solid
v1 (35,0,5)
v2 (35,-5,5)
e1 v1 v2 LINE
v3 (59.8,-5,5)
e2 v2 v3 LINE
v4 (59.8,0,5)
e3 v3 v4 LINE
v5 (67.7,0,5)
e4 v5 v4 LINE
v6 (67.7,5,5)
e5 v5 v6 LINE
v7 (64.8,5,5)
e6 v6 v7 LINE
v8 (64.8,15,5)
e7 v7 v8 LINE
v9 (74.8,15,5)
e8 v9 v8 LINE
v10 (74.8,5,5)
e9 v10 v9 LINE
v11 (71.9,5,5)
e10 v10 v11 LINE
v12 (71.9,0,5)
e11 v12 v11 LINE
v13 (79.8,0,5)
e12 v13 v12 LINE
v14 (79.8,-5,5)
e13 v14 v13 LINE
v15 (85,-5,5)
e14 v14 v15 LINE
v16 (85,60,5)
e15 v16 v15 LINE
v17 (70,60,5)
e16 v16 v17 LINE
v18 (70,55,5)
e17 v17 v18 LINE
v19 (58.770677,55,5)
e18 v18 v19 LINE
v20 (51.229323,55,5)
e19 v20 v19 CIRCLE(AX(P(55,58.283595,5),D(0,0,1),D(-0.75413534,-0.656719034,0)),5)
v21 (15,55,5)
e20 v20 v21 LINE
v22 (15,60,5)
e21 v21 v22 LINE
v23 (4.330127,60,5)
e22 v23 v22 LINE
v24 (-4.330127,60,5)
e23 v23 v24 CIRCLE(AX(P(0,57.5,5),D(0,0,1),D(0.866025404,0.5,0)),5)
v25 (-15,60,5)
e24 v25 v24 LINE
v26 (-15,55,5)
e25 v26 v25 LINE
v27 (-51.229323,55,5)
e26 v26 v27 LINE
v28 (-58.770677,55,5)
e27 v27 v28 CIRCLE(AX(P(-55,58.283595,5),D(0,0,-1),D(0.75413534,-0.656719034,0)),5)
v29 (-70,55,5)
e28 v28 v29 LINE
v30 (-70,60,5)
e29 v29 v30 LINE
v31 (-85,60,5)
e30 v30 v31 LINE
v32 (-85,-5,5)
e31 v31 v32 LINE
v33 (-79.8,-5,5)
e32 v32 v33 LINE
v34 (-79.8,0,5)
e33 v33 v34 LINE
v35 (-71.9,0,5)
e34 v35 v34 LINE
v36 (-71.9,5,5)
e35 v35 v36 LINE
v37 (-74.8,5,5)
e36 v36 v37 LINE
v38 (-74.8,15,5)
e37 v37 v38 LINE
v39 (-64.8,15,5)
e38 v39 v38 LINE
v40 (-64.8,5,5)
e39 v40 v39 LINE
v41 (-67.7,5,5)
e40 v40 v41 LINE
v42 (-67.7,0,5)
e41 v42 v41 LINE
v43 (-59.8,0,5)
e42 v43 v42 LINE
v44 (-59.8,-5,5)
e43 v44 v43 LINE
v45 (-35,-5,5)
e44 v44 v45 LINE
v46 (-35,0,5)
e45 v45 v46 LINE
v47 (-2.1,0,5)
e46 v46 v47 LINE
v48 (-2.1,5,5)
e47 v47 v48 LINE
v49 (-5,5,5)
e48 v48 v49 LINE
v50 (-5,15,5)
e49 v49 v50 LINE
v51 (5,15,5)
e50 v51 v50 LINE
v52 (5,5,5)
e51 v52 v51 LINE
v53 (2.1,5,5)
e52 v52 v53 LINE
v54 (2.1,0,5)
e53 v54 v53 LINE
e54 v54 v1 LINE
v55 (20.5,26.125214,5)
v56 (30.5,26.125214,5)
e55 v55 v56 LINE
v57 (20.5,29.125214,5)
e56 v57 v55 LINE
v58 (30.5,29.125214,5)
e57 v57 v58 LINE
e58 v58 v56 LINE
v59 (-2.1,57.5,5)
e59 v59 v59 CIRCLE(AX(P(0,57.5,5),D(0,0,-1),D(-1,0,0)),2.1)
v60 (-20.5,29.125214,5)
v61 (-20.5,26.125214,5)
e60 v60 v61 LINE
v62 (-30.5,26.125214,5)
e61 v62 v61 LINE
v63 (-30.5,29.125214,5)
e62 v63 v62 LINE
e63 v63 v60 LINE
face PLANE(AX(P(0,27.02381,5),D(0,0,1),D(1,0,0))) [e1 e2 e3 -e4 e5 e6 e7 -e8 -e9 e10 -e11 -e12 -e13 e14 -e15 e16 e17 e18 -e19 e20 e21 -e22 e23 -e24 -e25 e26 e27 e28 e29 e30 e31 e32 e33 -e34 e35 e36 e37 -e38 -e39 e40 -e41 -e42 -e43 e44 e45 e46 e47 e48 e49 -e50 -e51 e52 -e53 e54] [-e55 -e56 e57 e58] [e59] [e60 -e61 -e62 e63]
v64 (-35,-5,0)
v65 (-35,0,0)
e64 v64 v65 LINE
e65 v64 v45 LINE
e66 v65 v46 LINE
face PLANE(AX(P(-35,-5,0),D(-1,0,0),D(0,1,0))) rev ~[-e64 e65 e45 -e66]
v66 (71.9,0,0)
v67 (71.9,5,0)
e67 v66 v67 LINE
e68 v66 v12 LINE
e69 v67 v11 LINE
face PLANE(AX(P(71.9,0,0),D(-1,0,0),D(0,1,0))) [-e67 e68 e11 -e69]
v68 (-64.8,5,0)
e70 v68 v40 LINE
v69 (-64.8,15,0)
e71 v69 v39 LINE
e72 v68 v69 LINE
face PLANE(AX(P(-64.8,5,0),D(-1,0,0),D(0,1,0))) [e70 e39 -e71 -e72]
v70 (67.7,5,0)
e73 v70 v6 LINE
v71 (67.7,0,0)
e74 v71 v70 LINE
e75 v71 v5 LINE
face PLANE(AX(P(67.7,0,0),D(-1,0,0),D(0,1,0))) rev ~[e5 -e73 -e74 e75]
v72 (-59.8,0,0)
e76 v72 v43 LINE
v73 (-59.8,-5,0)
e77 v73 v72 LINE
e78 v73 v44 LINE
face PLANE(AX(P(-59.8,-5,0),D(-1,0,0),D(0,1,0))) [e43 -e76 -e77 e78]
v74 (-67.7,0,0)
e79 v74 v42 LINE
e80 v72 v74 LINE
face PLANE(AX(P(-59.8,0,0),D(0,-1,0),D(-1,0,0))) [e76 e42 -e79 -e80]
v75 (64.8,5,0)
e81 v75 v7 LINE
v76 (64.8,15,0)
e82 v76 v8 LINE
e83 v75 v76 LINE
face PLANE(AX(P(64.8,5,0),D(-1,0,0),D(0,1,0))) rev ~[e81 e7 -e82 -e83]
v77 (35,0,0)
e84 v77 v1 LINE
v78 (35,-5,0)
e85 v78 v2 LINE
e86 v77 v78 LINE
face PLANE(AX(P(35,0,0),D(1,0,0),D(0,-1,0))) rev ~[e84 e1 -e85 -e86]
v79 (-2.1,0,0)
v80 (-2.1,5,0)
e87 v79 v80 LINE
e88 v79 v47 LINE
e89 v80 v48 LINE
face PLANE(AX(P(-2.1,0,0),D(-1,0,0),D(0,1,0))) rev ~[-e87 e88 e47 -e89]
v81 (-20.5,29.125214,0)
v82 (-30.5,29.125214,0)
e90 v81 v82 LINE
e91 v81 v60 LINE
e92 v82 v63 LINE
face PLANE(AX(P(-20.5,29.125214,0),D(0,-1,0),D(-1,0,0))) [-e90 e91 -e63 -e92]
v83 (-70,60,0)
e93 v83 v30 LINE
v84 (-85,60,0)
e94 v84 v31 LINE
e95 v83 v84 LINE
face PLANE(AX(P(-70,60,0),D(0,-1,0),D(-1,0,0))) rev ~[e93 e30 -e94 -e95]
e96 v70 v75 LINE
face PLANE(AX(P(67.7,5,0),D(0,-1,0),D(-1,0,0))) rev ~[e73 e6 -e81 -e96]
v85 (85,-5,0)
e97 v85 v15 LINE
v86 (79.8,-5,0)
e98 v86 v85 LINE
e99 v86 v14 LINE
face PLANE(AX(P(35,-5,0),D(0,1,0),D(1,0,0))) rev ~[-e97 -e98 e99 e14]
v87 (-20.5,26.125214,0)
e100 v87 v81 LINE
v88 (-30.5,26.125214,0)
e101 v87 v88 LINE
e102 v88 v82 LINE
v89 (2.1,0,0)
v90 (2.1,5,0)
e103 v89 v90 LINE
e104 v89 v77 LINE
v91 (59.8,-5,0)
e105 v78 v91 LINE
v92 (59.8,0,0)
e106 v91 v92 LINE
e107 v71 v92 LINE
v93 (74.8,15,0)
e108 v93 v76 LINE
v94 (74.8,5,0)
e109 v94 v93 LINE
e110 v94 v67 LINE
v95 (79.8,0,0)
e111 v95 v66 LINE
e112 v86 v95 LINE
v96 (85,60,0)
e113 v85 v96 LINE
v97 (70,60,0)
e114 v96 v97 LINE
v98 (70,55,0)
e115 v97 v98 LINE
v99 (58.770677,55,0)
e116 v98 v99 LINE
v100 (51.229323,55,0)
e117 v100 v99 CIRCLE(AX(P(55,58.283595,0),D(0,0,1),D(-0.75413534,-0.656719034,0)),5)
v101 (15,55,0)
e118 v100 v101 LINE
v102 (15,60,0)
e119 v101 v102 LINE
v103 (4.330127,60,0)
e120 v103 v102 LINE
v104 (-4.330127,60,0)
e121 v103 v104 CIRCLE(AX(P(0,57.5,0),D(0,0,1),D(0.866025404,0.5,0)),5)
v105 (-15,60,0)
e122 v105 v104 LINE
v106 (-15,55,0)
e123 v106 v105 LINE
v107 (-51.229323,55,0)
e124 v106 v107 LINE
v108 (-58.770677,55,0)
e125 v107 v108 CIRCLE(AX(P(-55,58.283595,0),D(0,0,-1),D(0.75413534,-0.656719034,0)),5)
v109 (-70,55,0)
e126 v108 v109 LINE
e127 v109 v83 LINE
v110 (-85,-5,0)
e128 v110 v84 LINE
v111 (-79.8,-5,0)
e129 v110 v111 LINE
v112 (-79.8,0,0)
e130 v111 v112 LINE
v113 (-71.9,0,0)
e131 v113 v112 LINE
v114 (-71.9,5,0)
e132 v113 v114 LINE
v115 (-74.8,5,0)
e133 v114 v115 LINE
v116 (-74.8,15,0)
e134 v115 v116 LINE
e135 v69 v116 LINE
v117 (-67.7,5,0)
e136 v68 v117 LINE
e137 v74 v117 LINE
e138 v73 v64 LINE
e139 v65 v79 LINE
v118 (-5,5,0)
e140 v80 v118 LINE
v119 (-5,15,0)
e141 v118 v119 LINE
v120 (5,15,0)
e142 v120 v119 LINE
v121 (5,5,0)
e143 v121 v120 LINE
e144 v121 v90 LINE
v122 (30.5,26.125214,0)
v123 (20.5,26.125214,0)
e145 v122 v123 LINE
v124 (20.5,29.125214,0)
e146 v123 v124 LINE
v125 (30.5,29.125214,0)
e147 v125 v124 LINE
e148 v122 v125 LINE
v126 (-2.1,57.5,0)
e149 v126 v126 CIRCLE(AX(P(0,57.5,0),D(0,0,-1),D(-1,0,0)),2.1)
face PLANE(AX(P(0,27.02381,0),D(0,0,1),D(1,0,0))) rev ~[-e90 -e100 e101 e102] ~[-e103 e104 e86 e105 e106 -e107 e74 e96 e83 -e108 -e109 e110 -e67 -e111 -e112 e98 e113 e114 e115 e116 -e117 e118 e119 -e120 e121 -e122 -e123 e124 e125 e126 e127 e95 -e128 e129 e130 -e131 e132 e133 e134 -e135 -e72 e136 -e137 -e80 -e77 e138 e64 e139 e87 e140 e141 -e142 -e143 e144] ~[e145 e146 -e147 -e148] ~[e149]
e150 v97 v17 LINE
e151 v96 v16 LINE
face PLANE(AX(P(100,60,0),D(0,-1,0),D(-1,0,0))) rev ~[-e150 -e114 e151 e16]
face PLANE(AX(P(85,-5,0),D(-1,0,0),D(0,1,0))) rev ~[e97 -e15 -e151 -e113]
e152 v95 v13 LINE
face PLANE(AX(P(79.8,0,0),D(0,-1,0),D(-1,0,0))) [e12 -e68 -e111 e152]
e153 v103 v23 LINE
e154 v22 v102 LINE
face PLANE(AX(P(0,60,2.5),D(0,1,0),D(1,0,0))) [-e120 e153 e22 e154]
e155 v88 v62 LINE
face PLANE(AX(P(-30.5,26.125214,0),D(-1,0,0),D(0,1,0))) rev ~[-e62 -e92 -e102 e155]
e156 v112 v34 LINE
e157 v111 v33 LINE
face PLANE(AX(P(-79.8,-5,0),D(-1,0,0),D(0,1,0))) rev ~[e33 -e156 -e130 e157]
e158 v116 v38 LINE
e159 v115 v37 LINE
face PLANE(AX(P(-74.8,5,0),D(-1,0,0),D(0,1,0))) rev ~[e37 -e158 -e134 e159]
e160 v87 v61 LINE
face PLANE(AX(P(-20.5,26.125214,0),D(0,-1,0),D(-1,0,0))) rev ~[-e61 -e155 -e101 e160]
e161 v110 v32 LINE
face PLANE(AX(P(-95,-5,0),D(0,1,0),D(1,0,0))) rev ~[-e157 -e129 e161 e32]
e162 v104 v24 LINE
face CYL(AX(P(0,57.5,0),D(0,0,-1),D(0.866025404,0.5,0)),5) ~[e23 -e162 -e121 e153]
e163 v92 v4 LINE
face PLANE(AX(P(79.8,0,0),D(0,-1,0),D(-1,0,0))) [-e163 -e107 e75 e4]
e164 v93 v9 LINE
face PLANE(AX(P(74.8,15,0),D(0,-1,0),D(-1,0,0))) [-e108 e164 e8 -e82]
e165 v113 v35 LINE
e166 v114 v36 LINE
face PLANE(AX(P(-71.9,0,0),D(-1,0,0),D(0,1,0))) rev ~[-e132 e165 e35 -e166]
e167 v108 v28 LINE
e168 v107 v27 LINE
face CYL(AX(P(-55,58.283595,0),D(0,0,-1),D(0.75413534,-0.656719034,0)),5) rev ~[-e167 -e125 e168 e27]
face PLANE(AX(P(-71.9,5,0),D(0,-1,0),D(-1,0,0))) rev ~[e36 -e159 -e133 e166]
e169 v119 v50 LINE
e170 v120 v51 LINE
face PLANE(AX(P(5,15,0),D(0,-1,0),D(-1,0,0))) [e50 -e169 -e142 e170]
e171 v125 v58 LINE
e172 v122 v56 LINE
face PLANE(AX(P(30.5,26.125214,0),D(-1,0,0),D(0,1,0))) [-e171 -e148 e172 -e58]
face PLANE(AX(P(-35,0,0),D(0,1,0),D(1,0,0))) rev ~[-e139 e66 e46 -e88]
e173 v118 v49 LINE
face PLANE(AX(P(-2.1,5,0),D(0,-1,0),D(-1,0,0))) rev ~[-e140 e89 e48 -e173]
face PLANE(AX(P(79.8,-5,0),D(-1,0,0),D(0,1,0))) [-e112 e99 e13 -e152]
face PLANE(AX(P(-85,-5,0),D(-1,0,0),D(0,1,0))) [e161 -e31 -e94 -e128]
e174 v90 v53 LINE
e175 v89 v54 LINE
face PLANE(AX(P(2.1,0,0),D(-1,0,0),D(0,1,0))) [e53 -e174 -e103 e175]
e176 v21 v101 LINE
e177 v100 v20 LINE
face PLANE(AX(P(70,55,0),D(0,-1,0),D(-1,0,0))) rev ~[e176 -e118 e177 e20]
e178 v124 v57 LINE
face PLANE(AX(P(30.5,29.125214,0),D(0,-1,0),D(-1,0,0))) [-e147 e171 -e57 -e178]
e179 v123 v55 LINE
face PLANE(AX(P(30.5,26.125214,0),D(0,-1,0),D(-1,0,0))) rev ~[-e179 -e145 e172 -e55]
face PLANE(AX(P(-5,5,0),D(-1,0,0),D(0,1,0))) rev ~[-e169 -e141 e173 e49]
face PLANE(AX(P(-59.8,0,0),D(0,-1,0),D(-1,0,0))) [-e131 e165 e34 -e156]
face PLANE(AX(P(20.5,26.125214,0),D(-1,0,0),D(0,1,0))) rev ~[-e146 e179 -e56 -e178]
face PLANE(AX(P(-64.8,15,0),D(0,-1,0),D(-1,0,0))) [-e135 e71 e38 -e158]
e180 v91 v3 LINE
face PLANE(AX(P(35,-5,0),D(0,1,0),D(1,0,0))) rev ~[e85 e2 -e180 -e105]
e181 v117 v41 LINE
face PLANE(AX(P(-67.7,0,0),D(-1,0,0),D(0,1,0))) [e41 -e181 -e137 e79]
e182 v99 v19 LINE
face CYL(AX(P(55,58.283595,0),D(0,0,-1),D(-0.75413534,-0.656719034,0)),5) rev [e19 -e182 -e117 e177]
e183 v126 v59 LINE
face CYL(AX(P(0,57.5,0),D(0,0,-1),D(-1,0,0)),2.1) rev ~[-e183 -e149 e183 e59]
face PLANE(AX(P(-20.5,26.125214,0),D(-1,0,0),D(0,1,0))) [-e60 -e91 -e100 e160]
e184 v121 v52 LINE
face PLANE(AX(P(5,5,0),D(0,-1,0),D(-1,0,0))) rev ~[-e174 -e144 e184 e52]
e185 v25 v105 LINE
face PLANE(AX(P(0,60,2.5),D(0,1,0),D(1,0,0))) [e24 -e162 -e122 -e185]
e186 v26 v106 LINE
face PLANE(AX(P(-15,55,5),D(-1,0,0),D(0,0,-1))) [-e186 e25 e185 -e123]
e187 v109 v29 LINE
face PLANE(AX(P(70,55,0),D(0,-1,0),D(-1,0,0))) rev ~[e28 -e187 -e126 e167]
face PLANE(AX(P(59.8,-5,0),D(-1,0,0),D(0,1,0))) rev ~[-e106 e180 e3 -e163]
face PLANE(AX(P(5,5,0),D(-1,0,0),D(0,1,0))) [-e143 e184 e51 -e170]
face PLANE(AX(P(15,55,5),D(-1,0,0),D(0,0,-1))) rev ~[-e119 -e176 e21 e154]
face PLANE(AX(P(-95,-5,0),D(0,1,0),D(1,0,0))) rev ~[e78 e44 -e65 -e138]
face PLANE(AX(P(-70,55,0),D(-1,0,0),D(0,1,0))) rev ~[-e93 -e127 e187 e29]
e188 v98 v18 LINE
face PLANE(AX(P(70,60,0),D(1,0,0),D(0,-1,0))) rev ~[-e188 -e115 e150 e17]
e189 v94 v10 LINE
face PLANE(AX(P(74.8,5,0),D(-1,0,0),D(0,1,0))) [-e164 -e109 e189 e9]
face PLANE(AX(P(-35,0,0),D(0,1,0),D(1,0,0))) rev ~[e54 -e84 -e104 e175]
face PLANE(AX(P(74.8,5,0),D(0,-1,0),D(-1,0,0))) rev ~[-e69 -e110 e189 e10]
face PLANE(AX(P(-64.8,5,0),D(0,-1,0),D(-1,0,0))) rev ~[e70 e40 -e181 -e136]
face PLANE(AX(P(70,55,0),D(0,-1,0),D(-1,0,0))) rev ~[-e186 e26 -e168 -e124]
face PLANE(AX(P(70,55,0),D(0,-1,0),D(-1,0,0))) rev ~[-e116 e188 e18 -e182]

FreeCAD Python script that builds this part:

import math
import FreeCAD as App
import Part
import Sketcher

V = App.Vector

doc = App.newDocument("Part")
body = doc.addObject("PartDesign::Body", "Body")

sketch1 = doc.addObject("Sketcher::SketchObject", "Sketch")
body.addObject(sketch1)
sketch1.AttachmentSupport = (doc.XY_Plane, [""])
sketch1.MapMode = "FlatFace"
sketch1.addGeometry(Part.LineSegment(V(95, -5, 0), V(95, 0, 0)), False)
sketch1.addGeometry(Part.LineSegment(V(95, 0, 0), V(115, 0, 0)), False)
sketch1.addGeometry(Part.LineSegment(V(115, 0, 0), V(115, 15, 0)), False)
sketch1.addGeometry(Part.LineSegment(V(115, 15, 0), V(120, 15, 0)), False)
sketch1.addGeometry(Part.LineSegment(V(120, 15, 0), V(120, 40, 0)), False)
sketch1.addGeometry(Part.LineSegment(V(120, 40, 0), V(115, 40, 0)), False)
sketch1.addGeometry(Part.LineSegment(V(115, 40, 0), V(115, 55, 0)), False)
sketch1.addGeometry(Part.LineSegment(V(115, 55, 0), V(100, 55, 0)), False)
sketch1.addGeometry(Part.LineSegment(V(100, 55, 0), V(100, 60, 0)), False)
sketch1.addGeometry(Part.LineSegment(V(100, 60, 0), V(70, 60, 0)), False)
sketch1.addGeometry(Part.LineSegment(V(70, 60, 0), V(70, 55, 0)), False)
sketch1.addGeometry(Part.LineSegment(V(70, 55, 0), V(-70, 55, 0)), False)
sketch1.addGeometry(Part.LineSegment(V(-70, 55, 0), V(-70, 60, 0)), False)
sketch1.addGeometry(Part.LineSegment(V(-70, 60, 0), V(-100, 60, 0)), False)
sketch1.addGeometry(Part.LineSegment(V(-100, 60, 0), V(-100, 55, 0)), False)
sketch1.addGeometry(Part.LineSegment(V(-100, 55, 0), V(-115, 55, 0)), False)
sketch1.addGeometry(Part.LineSegment(V(-115, 55, 0), V(-115, 40, 0)), False)
sketch1.addGeometry(Part.LineSegment(V(-115, 40, 0), V(-120, 40, 0)), False)
sketch1.addGeometry(Part.LineSegment(V(-120, 40, 0), V(-120, 15, 0)), False)
sketch1.addGeometry(Part.LineSegment(V(-120, 15, 0), V(-115, 15, 0)), False)
sketch1.addGeometry(Part.LineSegment(V(-115, 15, 0), V(-115, 0, 0)), False)
sketch1.addGeometry(Part.LineSegment(V(-115, 0, 0), V(-95, 0, 0)), False)
sketch1.addGeometry(Part.LineSegment(V(-95, 0, 0), V(-95, -5, 0)), False)
sketch1.addGeometry(Part.LineSegment(V(-95, -5, 0), V(-35, -5, 0)), False)
sketch1.addGeometry(Part.LineSegment(V(-35, -5, 0), V(-35, 0, 0)), False)
sketch1.addGeometry(Part.LineSegment(V(-35, 0, 0), V(35, 0, 0)), False)
sketch1.addGeometry(Part.LineSegment(V(35, 0, 0), V(35, -5, 0)), False)
sketch1.addGeometry(Part.LineSegment(V(35, -5, 0), V(95, -5, 0)), False)
sketch1.addConstraint(Sketcher.Constraint("Coincident", 0, 2, 1, 1))
sketch1.addConstraint(Sketcher.Constraint("Coincident", 1, 2, 2, 1))
sketch1.addConstraint(Sketcher.Constraint("Coincident", 2, 2, 3, 1))
sketch1.addConstraint(Sketcher.Constraint("Coincident", 3, 2, 4, 1))
sketch1.addConstraint(Sketcher.Constraint("Coincident", 4, 2, 5, 1))
sketch1.addConstraint(Sketcher.Constraint("Coincident", 5, 2, 6, 1))
sketch1.addConstraint(Sketcher.Constraint("Coincident", 6, 2, 7, 1))
sketch1.addConstraint(Sketcher.Constraint("Coincident", 7, 2, 8, 1))
sketch1.addConstraint(Sketcher.Constraint("Coincident", 8, 2, 9, 1))
sketch1.addConstraint(Sketcher.Constraint("Coincident", 9, 2, 10, 1))
sketch1.addConstraint(Sketcher.Constraint("Coincident", 10, 2, 11, 1))
sketch1.addConstraint(Sketcher.Constraint("Coincident", 11, 2, 12, 1))
sketch1.addConstraint(Sketcher.Constraint("Coincident", 12, 2, 13, 1))
sketch1.addConstraint(Sketcher.Constraint("Coincident", 13, 2, 14, 1))
sketch1.addConstraint(Sketcher.Constraint("Coincident", 14, 2, 15, 1))
sketch1.addConstraint(Sketcher.Constraint("Coincident", 15, 2, 16, 1))
sketch1.addConstraint(Sketcher.Constraint("Coincident", 16, 2, 17, 1))
sketch1.addConstraint(Sketcher.Constraint("Coincident", 17, 2, 18, 1))
sketch1.addConstraint(Sketcher.Constraint("Coincident", 18, 2, 19, 1))
sketch1.addConstraint(Sketcher.Constraint("Coincident", 19, 2, 20, 1))
sketch1.addConstraint(Sketcher.Constraint("Coincident", 20, 2, 21, 1))
sketch1.addConstraint(Sketcher.Constraint("Coincident", 21, 2, 22, 1))
sketch1.addConstraint(Sketcher.Constraint("Coincident", 22, 2, 23, 1))
sketch1.addConstraint(Sketcher.Constraint("Coincident", 23, 2, 24, 1))
sketch1.addConstraint(Sketcher.Constraint("Coincident", 24, 2, 25, 1))
sketch1.addConstraint(Sketcher.Constraint("Coincident", 25, 2, 26, 1))
sketch1.addConstraint(Sketcher.Constraint("Coincident", 26, 2, 27, 1))
sketch1.addConstraint(Sketcher.Constraint("Coincident", 27, 2, 0, 1))
sketch1.addConstraint(Sketcher.Constraint("Vertical", 0))
sketch1.addConstraint(Sketcher.Constraint("Horizontal", 1))
sketch1.addConstraint(Sketcher.Constraint("Vertical", 2))
sketch1.addConstraint(Sketcher.Constraint("Horizontal", 3))
sketch1.addConstraint(Sketcher.Constraint("Vertical", 4))
sketch1.addConstraint(Sketcher.Constraint("Horizontal", 5))
sketch1.addConstraint(Sketcher.Constraint("Vertical", 6))
sketch1.addConstraint(Sketcher.Constraint("Horizontal", 7))
sketch1.addConstraint(Sketcher.Constraint("Vertical", 8))
sketch1.addConstraint(Sketcher.Constraint("Horizontal", 9))
sketch1.addConstraint(Sketcher.Constraint("Vertical", 10))
sketch1.addConstraint(Sketcher.Constraint("Horizontal", 11))
sketch1.addConstraint(Sketcher.Constraint("Vertical", 12))
sketch1.addConstraint(Sketcher.Constraint("Horizontal", 13))
sketch1.addConstraint(Sketcher.Constraint("Vertical", 14))
sketch1.addConstraint(Sketcher.Constraint("Horizontal", 15))
sketch1.addConstraint(Sketcher.Constraint("Vertical", 16))
sketch1.addConstraint(Sketcher.Constraint("Horizontal", 17))
sketch1.addConstraint(Sketcher.Constraint("Vertical", 18))
sketch1.addConstraint(Sketcher.Constraint("Horizontal", 19))
sketch1.addConstraint(Sketcher.Constraint("Vertical", 20))
sketch1.addConstraint(Sketcher.Constraint("Horizontal", 21))
sketch1.addConstraint(Sketcher.Constraint("Vertical", 22))
sketch1.addConstraint(Sketcher.Constraint("Horizontal", 23))
sketch1.addConstraint(Sketcher.Constraint("Vertical", 24))
sketch1.addConstraint(Sketcher.Constraint("Horizontal", 25))
sketch1.addConstraint(Sketcher.Constraint("Vertical", 26))
sketch1.addConstraint(Sketcher.Constraint("Horizontal", 27))
sketch1.addConstraint(Sketcher.Constraint("Symmetric", 1, 2, 20, 2, -1, 1))
sketch1.addConstraint(Sketcher.Constraint("Symmetric", 24, 2, 25, 2, -1, 1))
sketch1.addConstraint(Sketcher.Constraint("Symmetric", 9, 2, 12, 2, -2))
sketch1.addConstraint(Sketcher.Constraint("Symmetric", 7, 2, 14, 2, -2))
sketch1.addConstraint(Sketcher.Constraint("Symmetric", 5, 2, 16, 2, -2))
sketch1.addConstraint(Sketcher.Constraint("Symmetric", 3, 2, 18, 2, -2))
sketch1.addConstraint(Sketcher.Constraint("Symmetric", 0, 2, 21, 2, -2))
sketch1.addConstraint(Sketcher.Constraint("Horizontal", 7, 2, 10, 2))
sketch1.addConstraint(Sketcher.Constraint("Horizontal", 23, 2, 26, 2))
sketch1.addConstraint(Sketcher.Constraint("Vertical", 2, 2, 5, 2))
sketch1.addConstraint(Sketcher.Constraint("Equal", 19, 0))
sketch1.addConstraint(Sketcher.Constraint("Equal", 15, 2))
sketch1.addConstraint(Sketcher.Constraint("Equal", 2, 6))
sketch1.addConstraint(Sketcher.Constraint("Equal", 0, 8))
sketch1.addConstraint(Sketcher.Constraint("DistanceX", 1, 1, 1, 2, 20.0))
sketch1.addConstraint(Sketcher.Constraint("DistanceX", 3, 1, 3, 2, 5.0))
sketch1.addConstraint(Sketcher.Constraint("DistanceX", 7, 2, 7, 1, 15.0))
sketch1.addConstraint(Sketcher.Constraint("DistanceX", 9, 2, 9, 1, 30.0))
sketch1.addConstraint(Sketcher.Constraint("DistanceX", 11, 2, 11, 1, 140.0))
sketch1.addConstraint(Sketcher.Constraint("DistanceX", 23, 1, 23, 2, 60.0))
sketch1.addConstraint(Sketcher.Constraint("DistanceY", 4, 1, 4, 2, 25.0))
pad1 = doc.addObject("PartDesign::Pad", "Pad")
body.addObject(pad1)
pad1.Profile = sketch1
pad1.Length = 5

sketch2 = doc.addObject("Sketcher::SketchObject", "Sketch001")
body.addObject(sketch2)
sketch2.AttachmentSupport = (doc.XY_Plane, [""])
sketch2.MapMode = "FlatFace"
sketch2.addGeometry(Part.LineSegment(V(-85, 60, 0), V(-85, -5, 0)), False)
sketch2.addGeometry(Part.LineSegment(V(-85, -5, 0), V(-120, -5, 0)), False)
sketch2.addGeometry(Part.LineSegment(V(-120, -5, 0), V(-120, 60, 0)), False)
sketch2.addGeometry(Part.LineSegment(V(-120, 60, 0), V(-85, 60, 0)), False)
sketch2.addGeometry(Part.LineSegment(V(120, 60, 0), V(120, -5, 0)), False)
sketch2.addGeometry(Part.LineSegment(V(120, -5, 0), V(85, -5, 0)), False)
sketch2.addGeometry(Part.LineSegment(V(85, -5, 0), V(85, 60, 0)), False)
sketch2.addGeometry(Part.LineSegment(V(85, 60, 0), V(120, 60, 0)), False)
sketch2.addConstraint(Sketcher.Constraint("Coincident", 0, 2, 1, 1))
sketch2.addConstraint(Sketcher.Constraint("Coincident", 1, 2, 2, 1))
sketch2.addConstraint(Sketcher.Constraint("Coincident", 2, 2, 3, 1))
sketch2.addConstraint(Sketcher.Constraint("Coincident", 3, 2, 0, 1))
sketch2.addConstraint(Sketcher.Constraint("Coincident", 4, 2, 5, 1))
sketch2.addConstraint(Sketcher.Constraint("Coincident", 5, 2, 6, 1))
sketch2.addConstraint(Sketcher.Constraint("Coincident", 6, 2, 7, 1))
sketch2.addConstraint(Sketcher.Constraint("Coincident", 7, 2, 4, 1))
sketch2.addConstraint(Sketcher.Constraint("Vertical", 0))
sketch2.addConstraint(Sketcher.Constraint("Horizontal", 1))
sketch2.addConstraint(Sketcher.Constraint("Vertical", 2))
sketch2.addConstraint(Sketcher.Constraint("Horizontal", 3))
sketch2.addConstraint(Sketcher.Constraint("Vertical", 4))
sketch2.addConstraint(Sketcher.Constraint("Horizontal", 5))
sketch2.addConstraint(Sketcher.Constraint("Vertical", 6))
sketch2.addConstraint(Sketcher.Constraint("Horizontal", 7))
sketch2.addConstraint(Sketcher.Constraint("Symmetric", 1, 2, 4, 2, -2))
sketch2.addConstraint(Sketcher.Constraint("Symmetric", 3, 2, 6, 2, -2))
sketch2.addConstraint(Sketcher.Constraint("DistanceX", 1, 2, 1, 1, 35.0))
sketch2.addConstraint(Sketcher.Constraint("DistanceY", 0, 2, 0, 1, 65.0))
sketch2.addConstraint(Sketcher.Constraint("DistanceX", 0, 2, -1, 1, 85.0))
sketch2.addConstraint(Sketcher.Constraint("DistanceY", 0, 2, -1, 1, 5.0))
pocket1 = doc.addObject("PartDesign::Pocket", "Pocket")
body.addObject(pocket1)
pocket1.Profile = sketch2
pocket1.Length = 10
pocket1.Reversed = True

sketch3 = doc.addObject("Sketcher::SketchObject", "Sketch002")
body.addObject(sketch3)
sketch3.AttachmentSupport = (doc.XY_Plane, [""])
sketch3.MapMode = "FlatFace"
sketch3.addGeometry(Part.LineSegment(V(-59, 55, 0), V(-51, 55, 0)), False)
sketch3.addGeometry(Part.ArcOfCircle(Part.Circle(V(-55, 58, 0), V(0, 0, 1), 5), math.radians(-139), math.radians(-41)), False)
sketch3.addGeometry(Part.LineSegment(V(51, 55, 0), V(59, 55, 0)), False)
sketch3.addGeometry(Part.ArcOfCircle(Part.Circle(V(55, 58, 0), V(0, 0, 1), 5), math.radians(-139), math.radians(-41)), False)
sketch3.addConstraint(Sketcher.Constraint("Coincident", 0, 1, 1, 1))
sketch3.addConstraint(Sketcher.Constraint("Coincident", 1, 2, 0, 2))
sketch3.addConstraint(Sketcher.Constraint("Coincident", 2, 1, 3, 1))
sketch3.addConstraint(Sketcher.Constraint("Coincident", 3, 2, 2, 2))
sketch3.addConstraint(Sketcher.Constraint("Horizontal", 0))
sketch3.addConstraint(Sketcher.Constraint("Horizontal", 2))
sketch3.addConstraint(Sketcher.Constraint("Equal", 1, 3))
sketch3.addConstraint(Sketcher.Constraint("Symmetric", 1, 3, 3, 3, -2))
sketch3.addConstraint(Sketcher.Constraint("Horizontal", 1, 2, 2, 1))
sketch3.addConstraint(Sketcher.Constraint("Radius", 1, 5.0))
sketch3.addConstraint(Sketcher.Constraint("DistanceX", 1, 3, -1, 1, 55.0))
sketch3.addConstraint(Sketcher.Constraint("DistanceY", -1, 1, 0, 1, 55.0))
sketch3.addConstraint(Sketcher.Constraint("DistanceX", 0, 1, 0, 2, 7.541353))
pocket2 = doc.addObject("PartDesign::Pocket", "Pocket001")
body.addObject(pocket2)
pocket2.Profile = sketch3
pocket2.Length = 5
pocket2.Reversed = True

sketch4 = doc.addObject("Sketcher::SketchObject", "Sketch003")
body.addObject(sketch4)
sketch4.AttachmentSupport = (doc.XZ_Plane, [""])
sketch4.MapMode = "FlatFace"
sketch4.AttachmentOffset = App.Placement(V(0, 0, -55), App.Rotation())
sketch4.addGeometry(Part.LineSegment(V(-15, 0, 0), V(-15, 5, 0)), False)
sketch4.addGeometry(Part.LineSegment(V(-15, 5, 0), V(15, 5, 0)), False)
sketch4.addGeometry(Part.LineSegment(V(15, 5, 0), V(15, 0, 0)), False)
sketch4.addGeometry(Part.LineSegment(V(15, 0, 0), V(-15, 0, 0)), False)
sketch4.addConstraint(Sketcher.Constraint("Coincident", 0, 2, 1, 1))
sketch4.addConstraint(Sketcher.Constraint("Coincident", 1, 2, 2, 1))
sketch4.addConstraint(Sketcher.Constraint("Coincident", 2, 2, 3, 1))
sketch4.addConstraint(Sketcher.Constraint("Coincident", 3, 2, 0, 1))
sketch4.addConstraint(Sketcher.Constraint("Vertical", 0))
sketch4.addConstraint(Sketcher.Constraint("Horizontal", 1))
sketch4.addConstraint(Sketcher.Constraint("Vertical", 2))
sketch4.addConstraint(Sketcher.Constraint("Horizontal", 3))
sketch4.addConstraint(Sketcher.Constraint("Symmetric", 2, 2, 3, 2, -1, 1))
sketch4.addConstraint(Sketcher.Constraint("DistanceX", 1, 1, 1, 2, 30.0))
sketch4.addConstraint(Sketcher.Constraint("DistanceY", 0, 1, 0, 2, 5.0))
pad2 = doc.addObject("PartDesign::Pad", "Pad001")
body.addObject(pad2)
pad2.Profile = sketch4
pad2.Length = 5
pad2.Reversed = True

sketch5 = doc.addObject("Sketcher::SketchObject", "Sketch004")
body.addObject(sketch5)
sketch5.AttachmentSupport = (doc.XY_Plane, [""])
sketch5.MapMode = "FlatFace"
sketch5.addGeometry(Part.LineSegment(V(80, 0, 0), V(80, -5, 0)), False)
sketch5.addGeometry(Part.LineSegment(V(80, -5, 0), V(60, -5, 0)), False)
sketch5.addGeometry(Part.LineSegment(V(60, -5, 0), V(60, 0, 0)), False)
sketch5.addGeometry(Part.LineSegment(V(60, 0, 0), V(80, 0, 0)), False)
sketch5.addGeometry(Part.LineSegment(V(-60, 0, 0), V(-60, -5, 0)), False)
sketch5.addGeometry(Part.LineSegment(V(-60, -5, 0), V(-80, -5, 0)), False)
sketch5.addGeometry(Part.LineSegment(V(-80, -5, 0), V(-80, 0, 0)), False)
sketch5.addGeometry(Part.LineSegment(V(-80, 0, 0), V(-60, 0, 0)), False)
sketch5.addConstraint(Sketcher.Constraint("Coincident", 0, 2, 1, 1))
sketch5.addConstraint(Sketcher.Constraint("Coincident", 1, 2, 2, 1))
sketch5.addConstraint(Sketcher.Constraint("Coincident", 2, 2, 3, 1))
sketch5.addConstraint(Sketcher.Constraint("Coincident", 3, 2, 0, 1))
sketch5.addConstraint(Sketcher.Constraint("Coincident", 4, 2, 5, 1))
sketch5.addConstraint(Sketcher.Constraint("Coincident", 5, 2, 6, 1))
sketch5.addConstraint(Sketcher.Constraint("Coincident", 6, 2, 7, 1))
sketch5.addConstraint(Sketcher.Constraint("Coincident", 7, 2, 4, 1))
sketch5.addConstraint(Sketcher.Constraint("Vertical", 0))
sketch5.addConstraint(Sketcher.Constraint("Horizontal", 1))
sketch5.addConstraint(Sketcher.Constraint("Vertical", 2))
sketch5.addConstraint(Sketcher.Constraint("Horizontal", 3))
sketch5.addConstraint(Sketcher.Constraint("Vertical", 4))
sketch5.addConstraint(Sketcher.Constraint("Horizontal", 5))
sketch5.addConstraint(Sketcher.Constraint("Vertical", 6))
sketch5.addConstraint(Sketcher.Constraint("Horizontal", 7))
sketch5.addConstraint(Sketcher.Constraint("Symmetric", 3, 2, 6, 2, -1, 1))
sketch5.addConstraint(Sketcher.Constraint("Symmetric", 1, 2, 4, 2, -2))
sketch5.addConstraint(Sketcher.Constraint("PointOnObject", 2, 2, -1))
sketch5.addConstraint(Sketcher.Constraint("DistanceX", 1, 2, 1, 1, 20.0))
sketch5.addConstraint(Sketcher.Constraint("DistanceY", 0, 2, 0, 1, 5.0))
sketch5.addConstraint(Sketcher.Constraint("DistanceX", -1, 1, 0, 2, 79.8))
pocket3 = doc.addObject("PartDesign::Pocket", "Pocket002")
body.addObject(pocket3)
pocket3.Profile = sketch5
pocket3.Length = 5
pocket3.Reversed = True

sketch6 = doc.addObject("Sketcher::SketchObject", "Sketch005")
body.addObject(sketch6)
sketch6.AttachmentSupport = (doc.XY_Plane, [""])
sketch6.MapMode = "FlatFace"
sketch6.addGeometry(Part.Circle(V(0, 57.5, 0), V(0, 0, 1), 2.1), False)
sketch6.addConstraint(Sketcher.Constraint("PointOnObject", 0, 3, -2))
sketch6.addConstraint(Sketcher.Constraint("Diameter", 0, 4.2))
sketch6.addConstraint(Sketcher.Constraint("DistanceY", -1, 1, 0, 3, 57.5))
pocket4 = doc.addObject("PartDesign::Pocket", "Pocket003")
body.addObject(pocket4)
pocket4.Profile = sketch6
pocket4.Length = 5
pocket4.Reversed = True

sketch7 = doc.addObject("Sketcher::SketchObject", "Sketch006")
body.addObject(sketch7)
sketch7.AttachmentSupport = (doc.XY_Plane, [""])
sketch7.MapMode = "FlatFace"
sketch7.addGeometry(Part.LineSegment(V(4, 60, 0), V(-4, 60, 0)), False)
sketch7.addGeometry(Part.ArcOfCircle(Part.Circle(V(0, 58, 0), V(0, 0, 1), 5), math.radians(30), math.radians(150)), False)
sketch7.addConstraint(Sketcher.Constraint("Coincident", 0, 1, 1, 1))
sketch7.addConstraint(Sketcher.Constraint("Coincident", 1, 2, 0, 2))
sketch7.addConstraint(Sketcher.Constraint("Horizontal", 0))
sketch7.addConstraint(Sketcher.Constraint("PointOnObject", 1, 3, -2))
sketch7.addConstraint(Sketcher.Constraint("Radius", 1, 5.0))
sketch7.addConstraint(Sketcher.Constraint("DistanceY", -1, 1, 0, 1, 60.0))
sketch7.addConstraint(Sketcher.Constraint("DistanceY", -1, 1, 1, 3, 57.5))
pad3 = doc.addObject("PartDesign::Pad", "Pad002")
body.addObject(pad3)
pad3.Profile = sketch7
pad3.Length = 5

sketch8 = doc.addObject("Sketcher::SketchObject", "Sketch007")
body.addObject(sketch8)
sketch8.AttachmentSupport = (doc.XY_Plane, [""])
sketch8.MapMode = "FlatFace"
sketch8.addGeometry(Part.LineSegment(V(-67.7, 5, 0), V(-67.7, 0, 0)), False)
sketch8.addGeometry(Part.LineSegment(V(-67.7, 0, 0), V(-71.9, 0, 0)), False)
sketch8.addGeometry(Part.LineSegment(V(-71.9, 0, 0), V(-71.9, 5, 0)), False)
sketch8.addGeometry(Part.LineSegment(V(-71.9, 5, 0), V(-74.8, 5, 0)), False)
sketch8.addGeometry(Part.LineSegment(V(-74.8, 5, 0), V(-74.8, 15, 0)), False)
sketch8.addGeometry(Part.LineSegment(V(-74.8, 15, 0), V(-64.8, 15, 0)), False)
sketch8.addGeometry(Part.LineSegment(V(-64.8, 15, 0), V(-64.8, 5, 0)), False)
sketch8.addGeometry(Part.LineSegment(V(-64.8, 5, 0), V(-67.7, 5, 0)), False)
sketch8.addGeometry(Part.LineSegment(V(74.8, 15, 0), V(74.8, 5, 0)), False)
sketch8.addGeometry(Part.LineSegment(V(74.8, 5, 0), V(71.9, 5, 0)), False)
sketch8.addGeometry(Part.LineSegment(V(71.9, 5, 0), V(71.9, 0, 0)), False)
sketch8.addGeometry(Part.LineSegment(V(71.9, 0, 0), V(67.7, 0, 0)), False)
sketch8.addGeometry(Part.LineSegment(V(67.7, 0, 0), V(67.7, 5, 0)), False)
sketch8.addGeometry(Part.LineSegment(V(67.7, 5, 0), V(64.8, 5, 0)), False)
sketch8.addGeometry(Part.LineSegment(V(64.8, 5, 0), V(64.8, 15, 0)), False)
sketch8.addGeometry(Part.LineSegment(V(64.8, 15, 0), V(74.8, 15, 0)), False)
sketch8.addGeometry(Part.LineSegment(V(2.1, 5, 0), V(2.1, 0, 0)), False)
sketch8.addGeometry(Part.LineSegment(V(2.1, 0, 0), V(-2.1, 0, 0)), False)
sketch8.addGeometry(Part.LineSegment(V(-2.1, 0, 0), V(-2.1, 5, 0)), False)
sketch8.addGeometry(Part.LineSegment(V(-2.1, 5, 0), V(-5, 5, 0)), False)
sketch8.addGeometry(Part.LineSegment(V(-5, 5, 0), V(-5, 15, 0)), False)
sketch8.addGeometry(Part.LineSegment(V(-5, 15, 0), V(5, 15, 0)), False)
sketch8.addGeometry(Part.LineSegment(V(5, 15, 0), V(5, 5, 0)), False)
sketch8.addGeometry(Part.LineSegment(V(5, 5, 0), V(2.1, 5, 0)), False)
sketch8.addConstraint(Sketcher.Constraint("Coincident", 0, 2, 1, 1))
sketch8.addConstraint(Sketcher.Constraint("Coincident", 1, 2, 2, 1))
sketch8.addConstraint(Sketcher.Constraint("Coincident", 2, 2, 3, 1))
sketch8.addConstraint(Sketcher.Constraint("Coincident", 3, 2, 4, 1))
sketch8.addConstraint(Sketcher.Constraint("Coincident", 4, 2, 5, 1))
sketch8.addConstraint(Sketcher.Constraint("Coincident", 5, 2, 6, 1))
sketch8.addConstraint(Sketcher.Constraint("Coincident", 6, 2, 7, 1))
sketch8.addConstraint(Sketcher.Constraint("Coincident", 7, 2, 0, 1))
sketch8.addConstraint(Sketcher.Constraint("Coincident", 8, 2, 9, 1))
sketch8.addConstraint(Sketcher.Constraint("Coincident", 9, 2, 10, 1))
sketch8.addConstraint(Sketcher.Constraint("Coincident", 10, 2, 11, 1))
sketch8.addConstraint(Sketcher.Constraint("Coincident", 11, 2, 12, 1))
sketch8.addConstraint(Sketcher.Constraint("Coincident", 12, 2, 13, 1))
sketch8.addConstraint(Sketcher.Constraint("Coincident", 13, 2, 14, 1))
sketch8.addConstraint(Sketcher.Constraint("Coincident", 14, 2, 15, 1))
sketch8.addConstraint(Sketcher.Constraint("Coincident", 15, 2, 8, 1))
sketch8.addConstraint(Sketcher.Constraint("Coincident", 16, 2, 17, 1))
sketch8.addConstraint(Sketcher.Constraint("Coincident", 17, 2, 18, 1))
sketch8.addConstraint(Sketcher.Constraint("Coincident", 18, 2, 19, 1))
sketch8.addConstraint(Sketcher.Constraint("Coincident", 19, 2, 20, 1))
sketch8.addConstraint(Sketcher.Constraint("Coincident", 20, 2, 21, 1))
sketch8.addConstraint(Sketcher.Constraint("Coincident", 21, 2, 22, 1))
sketch8.addConstraint(Sketcher.Constraint("Coincident", 22, 2, 23, 1))
sketch8.addConstraint(Sketcher.Constraint("Coincident", 23, 2, 16, 1))
sketch8.addConstraint(Sketcher.Constraint("Vertical", 0))
sketch8.addConstraint(Sketcher.Constraint("Horizontal", 1))
sketch8.addConstraint(Sketcher.Constraint("Vertical", 2))
sketch8.addConstraint(Sketcher.Constraint("Horizontal", 3))
sketch8.addConstraint(Sketcher.Constraint("Vertical", 4))
sketch8.addConstraint(Sketcher.Constraint("Horizontal", 5))
sketch8.addConstraint(Sketcher.Constraint("Vertical", 6))
sketch8.addConstraint(Sketcher.Constraint("Horizontal", 7))
sketch8.addConstraint(Sketcher.Constraint("Vertical", 8))
sketch8.addConstraint(Sketcher.Constraint("Horizontal", 9))
sketch8.addConstraint(Sketcher.Constraint("Vertical", 10))
sketch8.addConstraint(Sketcher.Constraint("Horizontal", 11))
sketch8.addConstraint(Sketcher.Constraint("Vertical", 12))
sketch8.addConstraint(Sketcher.Constraint("Horizontal", 13))
sketch8.addConstraint(Sketcher.Constraint("Vertical", 14))
sketch8.addConstraint(Sketcher.Constraint("Horizontal", 15))
sketch8.addConstraint(Sketcher.Constraint("Vertical", 16))
sketch8.addConstraint(Sketcher.Constraint("Horizontal", 17))
sketch8.addConstraint(Sketcher.Constraint("Vertical", 18))
sketch8.addConstraint(Sketcher.Constraint("Horizontal", 19))
sketch8.addConstraint(Sketcher.Constraint("Vertical", 20))
sketch8.addConstraint(Sketcher.Constraint("Horizontal", 21))
sketch8.addConstraint(Sketcher.Constraint("Vertical", 22))
sketch8.addConstraint(Sketcher.Constraint("Horizontal", 23))
sketch8.addConstraint(Sketcher.Constraint("Symmetric", 1, 2, 10, 2, -1, 1))
sketch8.addConstraint(Sketcher.Constraint("Symmetric", 16, 2, 17, 2, -1, 1))
sketch8.addConstraint(Sketcher.Constraint("Symmetric", 3, 2, 8, 2, -2))
sketch8.addConstraint(Sketcher.Constraint("Symmetric", 0, 2, 11, 2, -2))
sketch8.addConstraint(Sketcher.Constraint("Symmetric", 6, 2, 13, 2, -2))
sketch8.addConstraint(Sketcher.Constraint("Symmetric", 19, 2, 22, 2, -2))
sketch8.addConstraint(Sketcher.Constraint("Horizontal", 3, 2, 6, 2))
sketch8.addConstraint(Sketcher.Constraint("Horizontal", 5, 2, 14, 2))
sketch8.addConstraint(Sketcher.Constraint("Horizontal", 13, 2, 18, 2))
sketch8.addConstraint(Sketcher.Constraint("Horizontal", 15, 2, 20, 2))
sketch8.addConstraint(Sketcher.Constraint("Equal", 3, 7))
sketch8.addConstraint(Sketcher.Constraint("Equal", 11, 17))
sketch8.addConstraint(Sketcher.Constraint("Equal", 13, 19))
sketch8.addConstraint(Sketcher.Constraint("Equal", 21, 4))
sketch8.addConstraint(Sketcher.Constraint("DistanceX", 5, 1, 5, 2, 10.0))
sketch8.addConstraint(Sketcher.Constraint("DistanceY", 0, 2, 0, 1, 5.0))
sketch8.addConstraint(Sketcher.Constraint("DistanceX", 1, 2, 1, 1, 4.2))
sketch8.addConstraint(Sketcher.Constraint("DistanceX", 0, 2, -1, 1, 67.7))
pocket5 = doc.addObject("PartDesign::Pocket", "Pocket004")
body.addObject(pocket5)
pocket5.Profile = sketch8
pocket5.Length = 5
pocket5.Reversed = True

sketch9 = doc.addObject("Sketcher::SketchObject", "Sketch008")
body.addObject(sketch9)
sketch9.AttachmentSupport = (doc.XY_Plane, [""])
sketch9.MapMode = "FlatFace"
sketch9.addGeometry(Part.LineSegment(V(30.5, 29.1, 0), V(30.5, 26.1, 0)), False)
sketch9.addGeometry(Part.LineSegment(V(30.5, 26.1, 0), V(20.5, 26.1, 0)), False)
sketch9.addGeometry(Part.LineSegment(V(20.5, 26.1, 0), V(20.5, 29.1, 0)), False)
sketch9.addGeometry(Part.LineSegment(V(20.5, 29.1, 0), V(30.5, 29.1, 0)), False)
sketch9.addGeometry(Part.LineSegment(V(-20.5, 29.1, 0), V(-20.5, 26.1, 0)), False)
sketch9.addGeometry(Part.LineSegment(V(-20.5, 26.1, 0), V(-30.5, 26.1, 0)), False)
sketch9.addGeometry(Part.LineSegment(V(-30.5, 26.1, 0), V(-30.5, 29.1, 0)), False)
sketch9.addGeometry(Part.LineSegment(V(-30.5, 29.1, 0), V(-20.5, 29.1, 0)), False)
sketch9.addConstraint(Sketcher.Constraint("Coincident", 0, 2, 1, 1))
sketch9.addConstraint(Sketcher.Constraint("Coincident", 1, 2, 2, 1))
sketch9.addConstraint(Sketcher.Constraint("Coincident", 2, 2, 3, 1))
sketch9.addConstraint(Sketcher.Constraint("Coincident", 3, 2, 0, 1))
sketch9.addConstraint(Sketcher.Constraint("Coincident", 4, 2, 5, 1))
sketch9.addConstraint(Sketcher.Constraint("Coincident", 5, 2, 6, 1))
sketch9.addConstraint(Sketcher.Constraint("Coincident", 6, 2, 7, 1))
sketch9.addConstraint(Sketcher.Constraint("Coincident", 7, 2, 4, 1))
sketch9.addConstraint(Sketcher.Constraint("Vertical", 0))
sketch9.addConstraint(Sketcher.Constraint("Horizontal", 1))
sketch9.addConstraint(Sketcher.Constraint("Vertical", 2))
sketch9.addConstraint(Sketcher.Constraint("Horizontal", 3))
sketch9.addConstraint(Sketcher.Constraint("Vertical", 4))
sketch9.addConstraint(Sketcher.Constraint("Horizontal", 5))
sketch9.addConstraint(Sketcher.Constraint("Vertical", 6))
sketch9.addConstraint(Sketcher.Constraint("Horizontal", 7))
sketch9.addConstraint(Sketcher.Constraint("Symmetric", 1, 2, 4, 2, -2))
sketch9.addConstraint(Sketcher.Constraint("Symmetric", 3, 2, 6, 2, -2))
sketch9.addConstraint(Sketcher.Constraint("DistanceX", 1, 2, 1, 1, 10.0))
sketch9.addConstraint(Sketcher.Constraint("DistanceY", 0, 2, 0, 1, 3.0))
sketch9.addConstraint(Sketcher.Constraint("DistanceX", 4, 2, 1, 2, 41.0))
sketch9.addConstraint(Sketcher.Constraint("DistanceY", -1, 1, 0, 2, 26.125214))
pocket6 = doc.addObject("PartDesign::Pocket", "Pocket005")
body.addObject(pocket6)
pocket6.Profile = sketch9
pocket6.Length = 10
pocket6.Reversed = True

doc.recompute()
